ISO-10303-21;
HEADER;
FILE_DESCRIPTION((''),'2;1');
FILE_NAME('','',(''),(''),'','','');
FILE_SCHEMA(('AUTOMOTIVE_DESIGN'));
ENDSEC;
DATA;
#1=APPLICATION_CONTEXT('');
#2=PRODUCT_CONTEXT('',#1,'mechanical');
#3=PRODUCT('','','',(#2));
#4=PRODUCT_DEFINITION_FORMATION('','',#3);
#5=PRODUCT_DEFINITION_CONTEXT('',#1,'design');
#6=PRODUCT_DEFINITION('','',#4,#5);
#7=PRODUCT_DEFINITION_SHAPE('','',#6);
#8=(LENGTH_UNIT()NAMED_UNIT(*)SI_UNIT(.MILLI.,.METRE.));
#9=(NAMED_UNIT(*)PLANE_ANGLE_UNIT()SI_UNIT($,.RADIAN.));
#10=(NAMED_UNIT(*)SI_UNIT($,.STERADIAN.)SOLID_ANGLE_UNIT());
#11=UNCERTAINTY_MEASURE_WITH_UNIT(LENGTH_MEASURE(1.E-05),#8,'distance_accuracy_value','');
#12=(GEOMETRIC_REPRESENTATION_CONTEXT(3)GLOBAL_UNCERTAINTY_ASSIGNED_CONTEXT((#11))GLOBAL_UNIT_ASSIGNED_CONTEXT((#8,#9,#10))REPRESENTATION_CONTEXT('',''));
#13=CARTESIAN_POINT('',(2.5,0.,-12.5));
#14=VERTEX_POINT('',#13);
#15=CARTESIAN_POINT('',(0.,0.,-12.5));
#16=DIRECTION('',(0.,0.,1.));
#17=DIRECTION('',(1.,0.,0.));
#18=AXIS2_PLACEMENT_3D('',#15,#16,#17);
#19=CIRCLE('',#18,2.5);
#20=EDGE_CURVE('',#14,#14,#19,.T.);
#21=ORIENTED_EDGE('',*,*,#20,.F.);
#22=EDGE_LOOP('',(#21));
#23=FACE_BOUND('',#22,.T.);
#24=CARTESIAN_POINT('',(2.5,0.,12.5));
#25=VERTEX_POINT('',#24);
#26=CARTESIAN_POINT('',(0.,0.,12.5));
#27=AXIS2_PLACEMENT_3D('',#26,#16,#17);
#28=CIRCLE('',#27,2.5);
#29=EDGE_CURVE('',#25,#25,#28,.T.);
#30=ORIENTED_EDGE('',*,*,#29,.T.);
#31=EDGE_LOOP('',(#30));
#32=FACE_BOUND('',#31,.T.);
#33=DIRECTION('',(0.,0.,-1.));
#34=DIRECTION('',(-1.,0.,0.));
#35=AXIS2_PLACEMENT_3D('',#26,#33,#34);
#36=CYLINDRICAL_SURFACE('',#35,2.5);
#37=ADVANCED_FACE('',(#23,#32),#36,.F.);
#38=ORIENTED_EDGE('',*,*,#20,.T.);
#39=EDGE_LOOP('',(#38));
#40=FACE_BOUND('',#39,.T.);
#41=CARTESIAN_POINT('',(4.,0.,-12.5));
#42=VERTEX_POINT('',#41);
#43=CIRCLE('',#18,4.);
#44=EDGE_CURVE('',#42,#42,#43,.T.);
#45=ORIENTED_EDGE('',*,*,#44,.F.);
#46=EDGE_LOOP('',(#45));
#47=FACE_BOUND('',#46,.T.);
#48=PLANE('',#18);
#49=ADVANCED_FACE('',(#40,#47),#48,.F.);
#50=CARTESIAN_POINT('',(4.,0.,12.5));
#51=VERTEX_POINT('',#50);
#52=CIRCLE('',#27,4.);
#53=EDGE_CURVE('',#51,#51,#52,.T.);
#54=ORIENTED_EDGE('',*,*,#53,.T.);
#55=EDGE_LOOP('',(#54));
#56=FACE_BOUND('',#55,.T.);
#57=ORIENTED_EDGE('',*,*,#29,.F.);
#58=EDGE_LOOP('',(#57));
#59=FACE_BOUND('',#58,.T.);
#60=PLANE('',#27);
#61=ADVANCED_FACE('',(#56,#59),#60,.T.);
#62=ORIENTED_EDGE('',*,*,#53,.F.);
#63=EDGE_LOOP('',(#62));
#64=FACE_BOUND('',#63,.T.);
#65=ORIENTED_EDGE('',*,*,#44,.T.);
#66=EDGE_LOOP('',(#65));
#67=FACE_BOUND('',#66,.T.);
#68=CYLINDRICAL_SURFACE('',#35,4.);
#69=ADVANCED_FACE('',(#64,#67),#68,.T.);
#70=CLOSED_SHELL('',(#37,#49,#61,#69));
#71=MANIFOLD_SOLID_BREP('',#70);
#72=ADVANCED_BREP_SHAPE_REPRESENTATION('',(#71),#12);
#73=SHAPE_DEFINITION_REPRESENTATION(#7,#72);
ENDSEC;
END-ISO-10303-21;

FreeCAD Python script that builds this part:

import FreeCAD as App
import Part
import Sketcher
from FreeCAD import Vector

doc = App.newDocument("Part")
body = doc.addObject("PartDesign::Body", "Body")

# Sketch on XY plane
sketch1 = doc.addObject("Sketcher::SketchObject", "Sketch")
body.addObject(sketch1)
sketch1.AttachmentSupport = (doc.XY_Plane, [""])
sketch1.MapMode = "FlatFace"
sketch1.addGeometry([
    Part.Circle(Vector(0, 0, 0), Vector(0, 0, 1), 4),
    Part.Circle(Vector(0, 0, 0), Vector(0, 0, 1), 2.5),
], False)
sketch1.addConstraint([
    Sketcher.Constraint("Coincident", 0, 3, -1, 1),
    Sketcher.Constraint("Coincident", 1, 3, -1, 1),
    Sketcher.Constraint("Diameter", 0, 8.0),
    Sketcher.Constraint("Diameter", 1, 5.0),
])
pad1 = doc.addObject("PartDesign::Pad", "Pad")
body.addObject(pad1)
pad1.Profile = sketch1
pad1.Length = 25
pad1.Midplane = True

doc.recompute()
